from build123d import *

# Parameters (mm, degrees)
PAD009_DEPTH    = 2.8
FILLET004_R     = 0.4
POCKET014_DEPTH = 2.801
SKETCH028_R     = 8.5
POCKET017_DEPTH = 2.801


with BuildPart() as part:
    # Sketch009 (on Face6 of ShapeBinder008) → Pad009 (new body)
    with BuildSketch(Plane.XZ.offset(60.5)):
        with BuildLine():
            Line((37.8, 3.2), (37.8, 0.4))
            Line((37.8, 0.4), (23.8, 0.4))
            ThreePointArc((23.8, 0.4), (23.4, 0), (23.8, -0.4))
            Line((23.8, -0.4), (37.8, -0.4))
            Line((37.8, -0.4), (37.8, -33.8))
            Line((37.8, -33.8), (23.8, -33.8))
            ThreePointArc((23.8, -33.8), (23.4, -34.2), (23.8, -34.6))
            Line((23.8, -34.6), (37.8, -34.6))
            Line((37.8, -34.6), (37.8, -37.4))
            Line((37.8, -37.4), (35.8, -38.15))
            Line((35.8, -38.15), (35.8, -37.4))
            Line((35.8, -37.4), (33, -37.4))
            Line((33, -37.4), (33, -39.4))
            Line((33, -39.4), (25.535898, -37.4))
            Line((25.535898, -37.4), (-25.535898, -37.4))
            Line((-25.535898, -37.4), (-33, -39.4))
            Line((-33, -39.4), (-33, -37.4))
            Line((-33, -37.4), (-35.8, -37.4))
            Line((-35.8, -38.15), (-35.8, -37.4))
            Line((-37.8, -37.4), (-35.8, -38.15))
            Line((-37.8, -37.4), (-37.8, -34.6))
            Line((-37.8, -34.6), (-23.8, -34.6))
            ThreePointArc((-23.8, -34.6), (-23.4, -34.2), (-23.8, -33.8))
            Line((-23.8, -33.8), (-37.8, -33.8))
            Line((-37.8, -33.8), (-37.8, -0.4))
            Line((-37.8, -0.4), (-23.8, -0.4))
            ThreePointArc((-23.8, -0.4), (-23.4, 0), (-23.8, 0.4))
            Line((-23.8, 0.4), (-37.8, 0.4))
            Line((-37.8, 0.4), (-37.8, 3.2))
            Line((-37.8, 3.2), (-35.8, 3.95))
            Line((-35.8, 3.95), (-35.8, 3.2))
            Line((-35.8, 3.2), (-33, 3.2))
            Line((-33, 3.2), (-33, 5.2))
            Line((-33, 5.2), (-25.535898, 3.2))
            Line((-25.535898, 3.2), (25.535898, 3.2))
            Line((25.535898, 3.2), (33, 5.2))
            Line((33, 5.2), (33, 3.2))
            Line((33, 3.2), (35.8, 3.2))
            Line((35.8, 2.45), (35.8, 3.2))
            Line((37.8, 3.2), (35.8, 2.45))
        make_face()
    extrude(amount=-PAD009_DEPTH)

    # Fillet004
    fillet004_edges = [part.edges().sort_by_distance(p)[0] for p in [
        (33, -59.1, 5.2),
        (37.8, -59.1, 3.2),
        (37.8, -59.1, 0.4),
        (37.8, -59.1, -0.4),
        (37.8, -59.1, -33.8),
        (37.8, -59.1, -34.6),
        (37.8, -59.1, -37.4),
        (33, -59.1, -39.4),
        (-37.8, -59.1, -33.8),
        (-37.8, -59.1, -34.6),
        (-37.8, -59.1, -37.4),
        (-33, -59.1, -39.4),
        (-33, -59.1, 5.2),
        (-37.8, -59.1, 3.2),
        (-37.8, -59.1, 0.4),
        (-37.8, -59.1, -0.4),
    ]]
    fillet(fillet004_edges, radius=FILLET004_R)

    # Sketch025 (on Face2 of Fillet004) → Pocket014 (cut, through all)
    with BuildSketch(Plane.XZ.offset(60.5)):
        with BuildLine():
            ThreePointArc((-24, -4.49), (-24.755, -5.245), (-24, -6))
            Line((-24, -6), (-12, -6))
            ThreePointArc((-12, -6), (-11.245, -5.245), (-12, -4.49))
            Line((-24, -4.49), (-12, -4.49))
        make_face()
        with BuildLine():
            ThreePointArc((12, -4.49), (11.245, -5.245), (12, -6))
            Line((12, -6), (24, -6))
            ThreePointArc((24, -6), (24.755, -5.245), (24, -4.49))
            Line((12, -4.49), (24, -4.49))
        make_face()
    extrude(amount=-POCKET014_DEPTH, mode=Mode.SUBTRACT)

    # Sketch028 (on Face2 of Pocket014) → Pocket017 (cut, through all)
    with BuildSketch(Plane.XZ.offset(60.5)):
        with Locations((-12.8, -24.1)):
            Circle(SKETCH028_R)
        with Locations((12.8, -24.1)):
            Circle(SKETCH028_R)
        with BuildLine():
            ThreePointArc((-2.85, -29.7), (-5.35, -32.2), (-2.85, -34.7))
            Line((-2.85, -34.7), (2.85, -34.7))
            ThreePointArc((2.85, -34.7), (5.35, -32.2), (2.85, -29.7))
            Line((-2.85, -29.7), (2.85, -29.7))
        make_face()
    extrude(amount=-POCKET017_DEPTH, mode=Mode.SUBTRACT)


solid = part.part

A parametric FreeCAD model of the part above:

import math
import FreeCAD as App
import Part
import Sketcher
Q = App.Units.Quantity


def edges_at(feature, points):
    """Names of the edges that pass closest to the given points."""
    edges = feature.Shape.Edges
    near = lambda p: min(range(len(edges)), key=lambda i: edges[i].distToShape(Part.Vertex(*p))[0])
    return sorted({f"Edge{near(p) + 1}" for p in points})

doc = App.newDocument("Part")
body = doc.addObject("PartDesign::Body", "Body")

sketch1 = body.newObject("Sketcher::SketchObject", "Sketch")
sketch1.AttachmentSupport = (doc.getObject("XZ_Plane"), [""])
sketch1.MapMode = "FlatFace"
sketch1.AttachmentOffset = App.Placement(App.Vector(0, 0, 60.5), App.Rotation())
sketch1.addGeometry(Part.LineSegment(App.Vector(37.8, 0.4, 0), App.Vector(37.8, 3.2, 0)), False)
sketch1.addGeometry(Part.LineSegment(App.Vector(37.8, 3.2, 0), App.Vector(35.8, 2.45, 0)), False)
sketch1.addGeometry(Part.LineSegment(App.Vector(35.8, 2.45, 0), App.Vector(35.8, 3.2, 0)), False)
sketch1.addGeometry(Part.LineSegment(App.Vector(35.8, 3.2, 0), App.Vector(33, 3.2, 0)), False)
sketch1.addGeometry(Part.LineSegment(App.Vector(33, 3.2, 0), App.Vector(33, 5.2, 0)), False)
sketch1.addGeometry(Part.LineSegment(App.Vector(33, 5.2, 0), App.Vector(25.54, 3.2, 0)), False)
sketch1.addGeometry(Part.LineSegment(App.Vector(25.54, 3.2, 0), App.Vector(-25.54, 3.2, 0)), False)
sketch1.addGeometry(Part.LineSegment(App.Vector(-25.54, 3.2, 0), App.Vector(-33, 5.2, 0)), False)
sketch1.addGeometry(Part.LineSegment(App.Vector(-33, 5.2, 0), App.Vector(-33, 3.2, 0)), False)
sketch1.addGeometry(Part.LineSegment(App.Vector(-33, 3.2, 0), App.Vector(-35.8, 3.2, 0)), False)
sketch1.addGeometry(Part.LineSegment(App.Vector(-35.8, 3.2, 0), App.Vector(-35.8, 3.95, 0)), False)
sketch1.addGeometry(Part.LineSegment(App.Vector(-35.8, 3.95, 0), App.Vector(-37.8, 3.2, 0)), False)
sketch1.addGeometry(Part.LineSegment(App.Vector(-37.8, 3.2, 0), App.Vector(-37.8, 0.4, 0)), False)
sketch1.addGeometry(Part.LineSegment(App.Vector(-37.8, 0.4, 0), App.Vector(-23.8, 0.4, 0)), False)
sketch1.addGeometry(Part.ArcOfCircle(Part.Circle(App.Vector(-23.8, 0, 0), App.Vector(0, 0, 1), 0.4), math.radians(-90), math.radians(90)), False)
sketch1.addGeometry(Part.LineSegment(App.Vector(-23.8, -0.4, 0), App.Vector(-37.8, -0.4, 0)), False)
sketch1.addGeometry(Part.LineSegment(App.Vector(-37.8, -0.4, 0), App.Vector(-37.8, -33.8, 0)), False)
sketch1.addGeometry(Part.LineSegment(App.Vector(-37.8, -33.8, 0), App.Vector(-23.8, -33.8, 0)), False)
sketch1.addGeometry(Part.ArcOfCircle(Part.Circle(App.Vector(-23.8, -34.2, 0), App.Vector(0, 0, 1), 0.4), math.radians(-90), math.radians(90)), False)
sketch1.addGeometry(Part.LineSegment(App.Vector(-23.8, -34.6, 0), App.Vector(-37.8, -34.6, 0)), False)
sketch1.addGeometry(Part.LineSegment(App.Vector(-37.8, -34.6, 0), App.Vector(-37.8, -37.4, 0)), False)
sketch1.addGeometry(Part.LineSegment(App.Vector(-37.8, -37.4, 0), App.Vector(-35.8, -38.15, 0)), False)
sketch1.addGeometry(Part.LineSegment(App.Vector(-35.8, -38.15, 0), App.Vector(-35.8, -37.4, 0)), False)
sketch1.addGeometry(Part.LineSegment(App.Vector(-35.8, -37.4, 0), App.Vector(-33, -37.4, 0)), False)
sketch1.addGeometry(Part.LineSegment(App.Vector(-33, -37.4, 0), App.Vector(-33, -39.4, 0)), False)
sketch1.addGeometry(Part.LineSegment(App.Vector(-33, -39.4, 0), App.Vector(-25.54, -37.4, 0)), False)
sketch1.addGeometry(Part.LineSegment(App.Vector(-25.54, -37.4, 0), App.Vector(25.54, -37.4, 0)), False)
sketch1.addGeometry(Part.LineSegment(App.Vector(25.54, -37.4, 0), App.Vector(33, -39.4, 0)), False)
sketch1.addGeometry(Part.LineSegment(App.Vector(33, -39.4, 0), App.Vector(33, -37.4, 0)), False)
sketch1.addGeometry(Part.LineSegment(App.Vector(33, -37.4, 0), App.Vector(35.8, -37.4, 0)), False)
sketch1.addGeometry(Part.LineSegment(App.Vector(35.8, -37.4, 0), App.Vector(35.8, -38.15, 0)), False)
sketch1.addGeometry(Part.LineSegment(App.Vector(35.8, -38.15, 0), App.Vector(37.8, -37.4, 0)), False)
sketch1.addGeometry(Part.LineSegment(App.Vector(37.8, -37.4, 0), App.Vector(37.8, -34.6, 0)), False)
sketch1.addGeometry(Part.LineSegment(App.Vector(37.8, -34.6, 0), App.Vector(23.8, -34.6, 0)), False)
sketch1.addGeometry(Part.ArcOfCircle(Part.Circle(App.Vector(23.8, -34.2, 0), App.Vector(0, 0, 1), 0.4), math.radians(90), math.radians(270)), False)
sketch1.addGeometry(Part.LineSegment(App.Vector(23.8, -33.8, 0), App.Vector(37.8, -33.8, 0)), False)
sketch1.addGeometry(Part.LineSegment(App.Vector(37.8, -33.8, 0), App.Vector(37.8, -0.4, 0)), False)
sketch1.addGeometry(Part.LineSegment(App.Vector(37.8, -0.4, 0), App.Vector(23.8, -0.4, 0)), False)
sketch1.addGeometry(Part.ArcOfCircle(Part.Circle(App.Vector(23.8, 0, 0), App.Vector(0, 0, 1), 0.4), math.radians(90), math.radians(270)), False)
sketch1.addGeometry(Part.LineSegment(App.Vector(23.8, 0.4, 0), App.Vector(37.8, 0.4, 0)), False)
sketch1.addConstraint(Sketcher.Constraint("Coincident", 0, 2, 1, 1))
sketch1.addConstraint(Sketcher.Constraint("Coincident", 1, 2, 2, 1))
sketch1.addConstraint(Sketcher.Constraint("Coincident", 2, 2, 3, 1))
sketch1.addConstraint(Sketcher.Constraint("Coincident", 3, 2, 4, 1))
sketch1.addConstraint(Sketcher.Constraint("Coincident", 4, 2, 5, 1))
sketch1.addConstraint(Sketcher.Constraint("Coincident", 5, 2, 6, 1))
sketch1.addConstraint(Sketcher.Constraint("Coincident", 6, 2, 7, 1))
sketch1.addConstraint(Sketcher.Constraint("Coincident", 7, 2, 8, 1))
sketch1.addConstraint(Sketcher.Constraint("Coincident", 8, 2, 9, 1))
sketch1.addConstraint(Sketcher.Constraint("Coincident", 9, 2, 10, 1))
sketch1.addConstraint(Sketcher.Constraint("Coincident", 10, 2, 11, 1))
sketch1.addConstraint(Sketcher.Constraint("Coincident", 11, 2, 12, 1))
sketch1.addConstraint(Sketcher.Constraint("Coincident", 12, 2, 13, 1))
sketch1.addConstraint(Sketcher.Constraint("Tangent", 13, 2, 14, 2))
sketch1.addConstraint(Sketcher.Constraint("Tangent", 14, 1, 15, 1))
sketch1.addConstraint(Sketcher.Constraint("Coincident", 15, 2, 16, 1))
sketch1.addConstraint(Sketcher.Constraint("Coincident", 16, 2, 17, 1))
sketch1.addConstraint(Sketcher.Constraint("Tangent", 17, 2, 18, 2))
sketch1.addConstraint(Sketcher.Constraint("Tangent", 18, 1, 19, 1))
sketch1.addConstraint(Sketcher.Constraint("Coincident", 19, 2, 20, 1))
sketch1.addConstraint(Sketcher.Constraint("Coincident", 20, 2, 21, 1))
sketch1.addConstraint(Sketcher.Constraint("Coincident", 21, 2, 22, 1))
sketch1.addConstraint(Sketcher.Constraint("Coincident", 22, 2, 23, 1))
sketch1.addConstraint(Sketcher.Constraint("Coincident", 23, 2, 24, 1))
sketch1.addConstraint(Sketcher.Constraint("Coincident", 24, 2, 25, 1))
sketch1.addConstraint(Sketcher.Constraint("Coincident", 25, 2, 26, 1))
sketch1.addConstraint(Sketcher.Constraint("Coincident", 26, 2, 27, 1))
sketch1.addConstraint(Sketcher.Constraint("Coincident", 27, 2, 28, 1))
sketch1.addConstraint(Sketcher.Constraint("Coincident", 28, 2, 29, 1))
sketch1.addConstraint(Sketcher.Constraint("Coincident", 29, 2, 30, 1))
sketch1.addConstraint(Sketcher.Constraint("Coincident", 30, 2, 31, 1))
sketch1.addConstraint(Sketcher.Constraint("Coincident", 31, 2, 32, 1))
sketch1.addConstraint(Sketcher.Constraint("Coincident", 32, 2, 33, 1))
sketch1.addConstraint(Sketcher.Constraint("Tangent", 33, 2, 34, 2))
sketch1.addConstraint(Sketcher.Constraint("Tangent", 34, 1, 35, 1))
sketch1.addConstraint(Sketcher.Constraint("Coincident", 35, 2, 36, 1))
sketch1.addConstraint(Sketcher.Constraint("Coincident", 36, 2, 37, 1))
sketch1.addConstraint(Sketcher.Constraint("Tangent", 37, 2, 38, 2))
sketch1.addConstraint(Sketcher.Constraint("Tangent", 38, 1, 39, 1))
sketch1.addConstraint(Sketcher.Constraint("Coincident", 39, 2, 0, 1))
sketch1.addConstraint(Sketcher.Constraint("Vertical", 0))
sketch1.addConstraint(Sketcher.Constraint("Vertical", 2))
sketch1.addConstraint(Sketcher.Constraint("Horizontal", 3))
sketch1.addConstraint(Sketcher.Constraint("Vertical", 4))
sketch1.addConstraint(Sketcher.Constraint("Horizontal", 6))
sketch1.addConstraint(Sketcher.Constraint("Vertical", 8))
sketch1.addConstraint(Sketcher.Constraint("Horizontal", 9))
sketch1.addConstraint(Sketcher.Constraint("Vertical", 10))
sketch1.addConstraint(Sketcher.Constraint("Vertical", 12))
sketch1.addConstraint(Sketcher.Constraint("Horizontal", 13))
sketch1.addConstraint(Sketcher.Constraint("Horizontal", 15))
sketch1.addConstraint(Sketcher.Constraint("Vertical", 16))
sketch1.addConstraint(Sketcher.Constraint("Horizontal", 17))
sketch1.addConstraint(Sketcher.Constraint("Horizontal", 19))
sketch1.addConstraint(Sketcher.Constraint("Vertical", 20))
sketch1.addConstraint(Sketcher.Constraint("Vertical", 22))
sketch1.addConstraint(Sketcher.Constraint("Horizontal", 23))
sketch1.addConstraint(Sketcher.Constraint("Vertical", 24))
sketch1.addConstraint(Sketcher.Constraint("Horizontal", 26))
sketch1.addConstraint(Sketcher.Constraint("Vertical", 28))
sketch1.addConstraint(Sketcher.Constraint("Horizontal", 29))
sketch1.addConstraint(Sketcher.Constraint("Vertical", 30))
sketch1.addConstraint(Sketcher.Constraint("Vertical", 32))
sketch1.addConstraint(Sketcher.Constraint("Horizontal", 33))
sketch1.addConstraint(Sketcher.Constraint("Horizontal", 35))
sketch1.addConstraint(Sketcher.Constraint("Vertical", 36))
sketch1.addConstraint(Sketcher.Constraint("Horizontal", 37))
sketch1.addConstraint(Sketcher.Constraint("Horizontal", 39))
sketch1.addConstraint(Sketcher.Constraint("Equal", 14, 18))
sketch1.addConstraint(Sketcher.Constraint("Equal", 18, 34))
sketch1.addConstraint(Sketcher.Constraint("Equal", 34, 38))
sketch1.addConstraint(Sketcher.Constraint("Symmetric", 14, 3, 38, 3, -1, 1))
sketch1.addConstraint(Sketcher.Constraint("Symmetric", 18, 3, 34, 3, -2))
sketch1.addConstraint(Sketcher.Constraint("Symmetric", 4, 2, 7, 2, -2))
sketch1.addConstraint(Sketcher.Constraint("Symmetric", 2, 2, 9, 2, -2))
sketch1.addConstraint(Sketcher.Constraint("Symmetric", 0, 2, 11, 2, -2))
sketch1.addConstraint(Sketcher.Constraint("Symmetric", 24, 2, 27, 2, -2))
sketch1.addConstraint(Sketcher.Constraint("Symmetric", 22, 2, 29, 2, -2))
sketch1.addConstraint(Sketcher.Constraint("Symmetric", 20, 2, 31, 2, -2))
sketch1.addConstraint(Sketcher.Constraint("Symmetric", 15, 2, 36, 2, -2))
sketch1.addConstraint(Sketcher.Constraint("Parallel", 1, 11))
sketch1.addConstraint(Sketcher.Constraint("Parallel", 5, 25))
sketch1.addConstraint(Sketcher.Constraint("Parallel", 7, 27))
sketch1.addConstraint(Sketcher.Constraint("Parallel", 11, 31))
sketch1.addConstraint(Sketcher.Constraint("Horizontal", 0, 2, 2, 2))
sketch1.addConstraint(Sketcher.Constraint("Horizontal", 3, 2, 5, 2))
sketch1.addConstraint(Sketcher.Constraint("Horizontal", 20, 2, 22, 2))
sketch1.addConstraint(Sketcher.Constraint("Horizontal", 23, 2, 25, 2))
sketch1.addConstraint(Sketcher.Constraint("Horizontal", 21, 2, 30, 2))
sketch1.addConstraint(Sketcher.Constraint("Vertical", 14, 3, 18, 3))
sketch1.addConstraint(Sketcher.Constraint("Vertical", 12, 2, 15, 2))
sketch1.addConstraint(Sketcher.Constraint("Vertical", 16, 2, 19, 2))
sketch1.addConstraint(Sketcher.Constraint("Vertical", 10, 2, 21, 2))
sketch1.addConstraint(Sketcher.Constraint("Vertical", 8, 2, 23, 2))
sketch1.addConstraint(Sketcher.Constraint("Vertical", 6, 2, 25, 2))
sketch1.addConstraint(Sketcher.Constraint("Vertical", 5, 2, 26, 2))
sketch1.addConstraint(Sketcher.Constraint("Equal", 29, 0))
sketch1.addConstraint(Sketcher.Constraint("Equal", 12, 20))
sketch1.addConstraint(Sketcher.Constraint("Radius", 14, Q("0.4 mm")))
sketch1.addConstraint(Sketcher.Constraint("DistanceX", 13, 1, 13, 2, Q("14 mm")))
sketch1.addConstraint(Sketcher.Constraint("DistanceY", 4, 1, 4, 2, Q("2 mm")))
sketch1.addConstraint(Sketcher.Constraint("Angle", 5, Q("-165.000001 deg")))
sketch1.addConstraint(Sketcher.Constraint("DistanceX", 3, 2, 3, 1, Q("2.8 mm")))
sketch1.addConstraint(Sketcher.Constraint("DistanceY", 16, 2, 16, 1, Q("33.4 mm")))
sketch1.addConstraint(Sketcher.Constraint("DistanceX", -1, 1, 3, 2, Q("33 mm")))
sketch1.addConstraint(Sketcher.Constraint("DistanceX", 1, 2, 0, 2, Q("2 mm")))
sketch1.addConstraint(Sketcher.Constraint("DistanceY", 2, 1, 2, 2, Q("0.75 mm")))
pad1 = body.newObject("PartDesign::Pad", "Pad")
pad1.Profile = sketch1
pad1.Length = 2.8
pad1.Reversed = True
doc.recompute()

fillet = body.newObject("PartDesign::Fillet", "Fillet")
fillet.Base = (pad1, edges_at(pad1, [
    (33, -59.1, 5.2),
    (37.8, -59.1, 3.2),
    (37.8, -59.1, 0.4),
    (37.8, -59.1, -0.4),
    (37.8, -59.1, -33.8),
    (37.8, -59.1, -34.6),
    (37.8, -59.1, -37.4),
    (33, -59.1, -39.4),
    (-37.8, -59.1, -33.8),
    (-37.8, -59.1, -34.6),
    (-37.8, -59.1, -37.4),
    (-33, -59.1, -39.4),
    (-33, -59.1, 5.2),
    (-37.8, -59.1, 3.2),
    (-37.8, -59.1, 0.4),
    (-37.8, -59.1, -0.4),
]))
fillet.Radius = 0.4

sketch2 = body.newObject("Sketcher::SketchObject", "Sketch001")
sketch2.AttachmentSupport = (doc.getObject("XZ_Plane"), [""])
sketch2.MapMode = "FlatFace"
sketch2.AttachmentOffset = App.Placement(App.Vector(0, 0, 60.5), App.Rotation())
sketch2.addGeometry(Part.ArcOfCircle(Part.Circle(App.Vector(-24, -5.2, 0), App.Vector(0, 0, 1), 0.8), math.radians(90), math.radians(270)), False)
sketch2.addGeometry(Part.LineSegment(App.Vector(-24, -6, 0), App.Vector(-12, -6, 0)), False)
sketch2.addGeometry(Part.ArcOfCircle(Part.Circle(App.Vector(-12, -5.2, 0), App.Vector(0, 0, 1), 0.8), math.radians(-90), math.radians(90)), False)
sketch2.addGeometry(Part.LineSegment(App.Vector(-12, -4.5, 0), App.Vector(-24, -4.5, 0)), False)
sketch2.addGeometry(Part.ArcOfCircle(Part.Circle(App.Vector(12, -5.2, 0), App.Vector(0, 0, 1), 0.8), math.radians(90), math.radians(270)), False)
sketch2.addGeometry(Part.LineSegment(App.Vector(12, -6, 0), App.Vector(24, -6, 0)), False)
sketch2.addGeometry(Part.ArcOfCircle(Part.Circle(App.Vector(24, -5.2, 0), App.Vector(0, 0, 1), 0.8), math.radians(-90), math.radians(90)), False)
sketch2.addGeometry(Part.LineSegment(App.Vector(24, -4.5, 0), App.Vector(12, -4.5, 0)), False)
sketch2.addConstraint(Sketcher.Constraint("Tangent", 0, 2, 1, 1))
sketch2.addConstraint(Sketcher.Constraint("Tangent", 1, 2, 2, 1))
sketch2.addConstraint(Sketcher.Constraint("Tangent", 2, 2, 3, 1))
sketch2.addConstraint(Sketcher.Constraint("Tangent", 3, 2, 0, 1))
sketch2.addConstraint(Sketcher.Constraint("Tangent", 4, 2, 5, 1))
sketch2.addConstraint(Sketcher.Constraint("Tangent", 5, 2, 6, 1))
sketch2.addConstraint(Sketcher.Constraint("Tangent", 6, 2, 7, 1))
sketch2.addConstraint(Sketcher.Constraint("Tangent", 7, 2, 4, 1))
sketch2.addConstraint(Sketcher.Constraint("Horizontal", 1))
sketch2.addConstraint(Sketcher.Constraint("Horizontal", 3))
sketch2.addConstraint(Sketcher.Constraint("Horizontal", 5))
sketch2.addConstraint(Sketcher.Constraint("Horizontal", 7))
sketch2.addConstraint(Sketcher.Constraint("Equal", 2, 4))
sketch2.addConstraint(Sketcher.Constraint("Symmetric", 2, 3, 4, 3, -2))
sketch2.addConstraint(Sketcher.Constraint("Equal", 3, 5))
sketch2.addConstraint(Sketcher.Constraint("DistanceX", 1, 1, 1, 2, Q("12 mm")))
sketch2.addConstraint(Sketcher.Constraint("DistanceX", 0, 3, -1, 1, Q("24 mm")))
sketch2.addConstraint(Sketcher.Constraint("DistanceY", 0, 2, -1, 1, Q("6 mm")))
sketch2.addConstraint(Sketcher.Constraint("Radius", 0, Q("0.755 mm")))
pocket1 = body.newObject("PartDesign::Pocket", "Pocket")
pocket1.Profile = sketch2
pocket1.Type = "ThroughAll"

sketch3 = body.newObject("Sketcher::SketchObject", "Sketch002")
sketch3.AttachmentSupport = (doc.getObject("XZ_Plane"), [""])
sketch3.MapMode = "FlatFace"
sketch3.AttachmentOffset = App.Placement(App.Vector(0, 0, 60.5), App.Rotation())
sketch3.addGeometry(Part.Circle(App.Vector(-12.8, -24.1, 0), App.Vector(0, 0, 1), 8.5), False)
sketch3.addGeometry(Part.Circle(App.Vector(12.8, -24.1, 0), App.Vector(0, 0, 1), 8.5), False)
sketch3.addGeometry(Part.ArcOfCircle(Part.Circle(App.Vector(-2.9, -32.2, 0), App.Vector(0, 0, 1), 2.5), math.radians(90), math.radians(270)), False)
sketch3.addGeometry(Part.LineSegment(App.Vector(-2.9, -34.7, 0), App.Vector(2.9, -34.7, 0)), False)
sketch3.addGeometry(Part.ArcOfCircle(Part.Circle(App.Vector(2.9, -32.2, 0), App.Vector(0, 0, 1), 2.5), math.radians(-90), math.radians(90)), False)
sketch3.addGeometry(Part.LineSegment(App.Vector(2.9, -29.7, 0), App.Vector(-2.9, -29.7, 0)), False)
sketch3.addConstraint(Sketcher.Constraint("Tangent", 2, 2, 3, 1))
sketch3.addConstraint(Sketcher.Constraint("Tangent", 3, 2, 4, 1))
sketch3.addConstraint(Sketcher.Constraint("Tangent", 4, 2, 5, 1))
sketch3.addConstraint(Sketcher.Constraint("Tangent", 5, 2, 2, 1))
sketch3.addConstraint(Sketcher.Constraint("Horizontal", 3))
sketch3.addConstraint(Sketcher.Constraint("Horizontal", 5))
sketch3.addConstraint(Sketcher.Constraint("Equal", 0, 1))
sketch3.addConstraint(Sketcher.Constraint("Symmetric", 0, 3, 1, 3, -2))
sketch3.addConstraint(Sketcher.Constraint("Diameter", 0, Q("17 mm")))
sketch3.addConstraint(Sketcher.Constraint("Radius", 2, Q("2.5 mm")))
sketch3.addConstraint(Sketcher.Constraint("DistanceX", 3, 1, 3, 2, Q("5.7 mm")))
sketch3.addConstraint(Sketcher.Constraint("DistanceX", 0, 3, -1, 1, Q("12.8 mm")))
sketch3.addConstraint(Sketcher.Constraint("DistanceY", 0, 3, -1, 1, Q("24.1 mm")))
sketch3.addConstraint(Sketcher.Constraint("DistanceY", 2, 3, -1, 1, Q("32.2 mm")))
sketch3.addConstraint(Sketcher.Constraint("DistanceX", 2, 3, -1, 1, Q("2.85 mm")))
pocket2 = body.newObject("PartDesign::Pocket", "Pocket001")
pocket2.Profile = sketch3
pocket2.Type = "ThroughAll"

doc.recompute()
